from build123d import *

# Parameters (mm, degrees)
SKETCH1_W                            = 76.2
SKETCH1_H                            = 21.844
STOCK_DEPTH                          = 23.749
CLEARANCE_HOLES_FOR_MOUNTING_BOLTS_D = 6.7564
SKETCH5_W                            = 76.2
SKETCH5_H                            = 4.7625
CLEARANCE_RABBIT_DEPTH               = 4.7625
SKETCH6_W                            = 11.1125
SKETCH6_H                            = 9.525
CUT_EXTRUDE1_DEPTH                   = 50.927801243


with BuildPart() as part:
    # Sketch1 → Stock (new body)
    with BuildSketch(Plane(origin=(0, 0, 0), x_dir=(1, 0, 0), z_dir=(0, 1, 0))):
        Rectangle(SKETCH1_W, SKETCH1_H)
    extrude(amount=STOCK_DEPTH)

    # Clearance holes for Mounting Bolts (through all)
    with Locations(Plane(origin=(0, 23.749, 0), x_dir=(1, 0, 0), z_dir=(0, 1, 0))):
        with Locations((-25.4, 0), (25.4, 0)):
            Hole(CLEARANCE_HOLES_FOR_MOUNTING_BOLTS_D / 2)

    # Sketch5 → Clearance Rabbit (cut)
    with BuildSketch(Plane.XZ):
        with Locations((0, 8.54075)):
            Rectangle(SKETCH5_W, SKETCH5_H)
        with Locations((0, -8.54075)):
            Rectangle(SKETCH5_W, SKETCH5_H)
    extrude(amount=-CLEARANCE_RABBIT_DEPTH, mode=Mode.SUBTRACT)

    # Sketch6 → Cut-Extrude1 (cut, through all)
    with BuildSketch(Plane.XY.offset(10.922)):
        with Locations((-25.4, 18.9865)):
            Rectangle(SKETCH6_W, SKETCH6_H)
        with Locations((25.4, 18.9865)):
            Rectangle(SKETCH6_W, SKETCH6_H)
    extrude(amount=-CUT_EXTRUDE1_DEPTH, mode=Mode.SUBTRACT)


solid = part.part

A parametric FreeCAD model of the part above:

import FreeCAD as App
import Part
import Sketcher
from FreeCAD import Vector
Q = App.Units.Quantity


def add_polygon(sketch, points):
    """Adds a closed chain of lines whose ends are joined by coincident constraints."""
    first, n = sketch.GeometryCount, len(points)
    for a, b in zip(points, points[1:] + points[:1]):
        sketch.addGeometry(Part.LineSegment(App.Vector(*a, 0), App.Vector(*b, 0)), False)
    for i in range(n):
        sketch.addConstraint(Sketcher.Constraint("Coincident", first + i, 2, first + (i + 1) % n, 1))

doc = App.newDocument("Part")
body = doc.addObject("PartDesign::Body", "Body")

sketch1 = body.newObject("Sketcher::SketchObject", "Sketch")
sketch1.AttachmentSupport = (doc.getObject("XZ_Plane"), [""])
sketch1.MapMode = "FlatFace"
add_polygon(sketch1, [(-38, -11), (-38, 11), (38, 11), (38, -11)])
sketch1.addConstraint([
    Sketcher.Constraint("Vertical", 0),
    Sketcher.Constraint("Horizontal", 1),
    Sketcher.Constraint("Vertical", 2),
    Sketcher.Constraint("Horizontal", 3),
    Sketcher.Constraint("Symmetric", 0, 2, 2, 2, -1, 1),
    Sketcher.Constraint("DistanceX", 1, 1, 1, 2, Q("3 in")),
    Sketcher.Constraint("DistanceY", 0, 1, 0, 2, Q("0.86 in")),
])
pad1 = body.newObject("PartDesign::Pad", "Pad")
pad1.Profile = sketch1
pad1.Length = Q("0.935 in")
pad1.Reversed = True

sketch2 = body.newObject("Sketcher::SketchObject", "Sketch001")
sketch2.AttachmentSupport = (doc.getObject("XZ_Plane"), [""])
sketch2.MapMode = "FlatFace"
sketch2.AttachmentOffset = App.Placement(Vector(0, 0, -0.935 * 25.4), App.Rotation())
sketch2.addGeometry([
    Part.Circle(Vector(-25.4, 0, 0), Vector(0, 0, 1), 3.4),
    Part.Circle(Vector(25.4, 0, 0), Vector(0, 0, 1), 3.4),
], False)
sketch2.addConstraint([
    Sketcher.Constraint("Equal", 0, 1),
    Sketcher.Constraint("Symmetric", 0, 3, 1, 3, -1, 1),
    Sketcher.Constraint("PointOnObject", 0, 3, -1),
    Sketcher.Constraint("Diameter", 0, Q("0.266 in")),
    Sketcher.Constraint("DistanceX", 0, 3, -1, 1, Q("1 in")),
])
doc.recompute()
hole = body.newObject("PartDesign::Hole", "Hole")
hole.Profile = sketch2
hole.ThreadType = "None"
hole.Diameter = Q("0.266 in")
hole.DepthType = "ThroughAll"
hole.Reversed = True

sketch3 = body.newObject("Sketcher::SketchObject", "Sketch002")
sketch3.AttachmentSupport = (doc.getObject("XZ_Plane"), [""])
sketch3.MapMode = "FlatFace"
add_polygon(sketch3, [(-38.1, 10.9), (-38.1, 6.2), (38.1, 6.2), (38.1, 10.9)])
add_polygon(sketch3, [(-38.1, -6.2), (-38.1, -10.9), (38.1, -10.9), (38.1, -6.2)])
sketch3.addConstraint([
    Sketcher.Constraint("Vertical", 0),
    Sketcher.Constraint("Horizontal", 1),
    Sketcher.Constraint("Vertical", 2),
    Sketcher.Constraint("Horizontal", 3),
    Sketcher.Constraint("Vertical", 4),
    Sketcher.Constraint("Horizontal", 5),
    Sketcher.Constraint("Vertical", 6),
    Sketcher.Constraint("Horizontal", 7),
    Sketcher.Constraint("Symmetric", 2, 2, 4, 2, -1, 1),
    Sketcher.Constraint("Symmetric", 0, 2, 6, 2, -1, 1),
    Sketcher.Constraint("Vertical", 3, 2, 4, 2),
    Sketcher.Constraint("DistanceX", 1, 1, 1, 2, Q("3 in")),
    Sketcher.Constraint("DistanceY", 0, 2, 0, 1, Q("0.1875 in")),
    Sketcher.Constraint("DistanceY", -1, 1, 2, 2, Q("0.43 in")),
])
pocket1 = body.newObject("PartDesign::Pocket", "Pocket")
pocket1.Profile = sketch3
pocket1.Length = Q("0.1875 in")

sketch4 = body.newObject("Sketcher::SketchObject", "Sketch003")
sketch4.AttachmentSupport = (doc.getObject("XY_Plane"), [""])
sketch4.MapMode = "FlatFace"
sketch4.AttachmentOffset = App.Placement(Vector(0, 0, 0.43 * 25.4), App.Rotation())
add_polygon(sketch4, [(-31, 24), (-31, 14), (-20, 14), (-20, 24)])
add_polygon(sketch4, [(20, 24), (20, 14), (31, 14), (31, 24)])
sketch4.addConstraint([
    Sketcher.Constraint("Vertical", 0),
    Sketcher.Constraint("Horizontal", 1),
    Sketcher.Constraint("Vertical", 2),
    Sketcher.Constraint("Horizontal", 3),
    Sketcher.Constraint("Vertical", 4),
    Sketcher.Constraint("Horizontal", 5),
    Sketcher.Constraint("Vertical", 6),
    Sketcher.Constraint("Horizontal", 7),
    Sketcher.Constraint("Symmetric", 1, 2, 4, 2, -2),
    Sketcher.Constraint("Symmetric", 3, 2, 6, 2, -2),
    Sketcher.Constraint("DistanceX", 0, 2, 4, 2, Q("2 in")),
    Sketcher.Constraint("DistanceX", 1, 1, 1, 2, Q("0.4375 in")),
    Sketcher.Constraint("DistanceY", 0, 2, 0, 1, Q("0.375 in")),
    Sketcher.Constraint("DistanceY", -1, 1, 0, 2, Q("0.56 in")),
])
pocket2 = body.newObject("PartDesign::Pocket", "Pocket001")
pocket2.Profile = sketch4
pocket2.Type = "ThroughAll"

doc.recompute()
